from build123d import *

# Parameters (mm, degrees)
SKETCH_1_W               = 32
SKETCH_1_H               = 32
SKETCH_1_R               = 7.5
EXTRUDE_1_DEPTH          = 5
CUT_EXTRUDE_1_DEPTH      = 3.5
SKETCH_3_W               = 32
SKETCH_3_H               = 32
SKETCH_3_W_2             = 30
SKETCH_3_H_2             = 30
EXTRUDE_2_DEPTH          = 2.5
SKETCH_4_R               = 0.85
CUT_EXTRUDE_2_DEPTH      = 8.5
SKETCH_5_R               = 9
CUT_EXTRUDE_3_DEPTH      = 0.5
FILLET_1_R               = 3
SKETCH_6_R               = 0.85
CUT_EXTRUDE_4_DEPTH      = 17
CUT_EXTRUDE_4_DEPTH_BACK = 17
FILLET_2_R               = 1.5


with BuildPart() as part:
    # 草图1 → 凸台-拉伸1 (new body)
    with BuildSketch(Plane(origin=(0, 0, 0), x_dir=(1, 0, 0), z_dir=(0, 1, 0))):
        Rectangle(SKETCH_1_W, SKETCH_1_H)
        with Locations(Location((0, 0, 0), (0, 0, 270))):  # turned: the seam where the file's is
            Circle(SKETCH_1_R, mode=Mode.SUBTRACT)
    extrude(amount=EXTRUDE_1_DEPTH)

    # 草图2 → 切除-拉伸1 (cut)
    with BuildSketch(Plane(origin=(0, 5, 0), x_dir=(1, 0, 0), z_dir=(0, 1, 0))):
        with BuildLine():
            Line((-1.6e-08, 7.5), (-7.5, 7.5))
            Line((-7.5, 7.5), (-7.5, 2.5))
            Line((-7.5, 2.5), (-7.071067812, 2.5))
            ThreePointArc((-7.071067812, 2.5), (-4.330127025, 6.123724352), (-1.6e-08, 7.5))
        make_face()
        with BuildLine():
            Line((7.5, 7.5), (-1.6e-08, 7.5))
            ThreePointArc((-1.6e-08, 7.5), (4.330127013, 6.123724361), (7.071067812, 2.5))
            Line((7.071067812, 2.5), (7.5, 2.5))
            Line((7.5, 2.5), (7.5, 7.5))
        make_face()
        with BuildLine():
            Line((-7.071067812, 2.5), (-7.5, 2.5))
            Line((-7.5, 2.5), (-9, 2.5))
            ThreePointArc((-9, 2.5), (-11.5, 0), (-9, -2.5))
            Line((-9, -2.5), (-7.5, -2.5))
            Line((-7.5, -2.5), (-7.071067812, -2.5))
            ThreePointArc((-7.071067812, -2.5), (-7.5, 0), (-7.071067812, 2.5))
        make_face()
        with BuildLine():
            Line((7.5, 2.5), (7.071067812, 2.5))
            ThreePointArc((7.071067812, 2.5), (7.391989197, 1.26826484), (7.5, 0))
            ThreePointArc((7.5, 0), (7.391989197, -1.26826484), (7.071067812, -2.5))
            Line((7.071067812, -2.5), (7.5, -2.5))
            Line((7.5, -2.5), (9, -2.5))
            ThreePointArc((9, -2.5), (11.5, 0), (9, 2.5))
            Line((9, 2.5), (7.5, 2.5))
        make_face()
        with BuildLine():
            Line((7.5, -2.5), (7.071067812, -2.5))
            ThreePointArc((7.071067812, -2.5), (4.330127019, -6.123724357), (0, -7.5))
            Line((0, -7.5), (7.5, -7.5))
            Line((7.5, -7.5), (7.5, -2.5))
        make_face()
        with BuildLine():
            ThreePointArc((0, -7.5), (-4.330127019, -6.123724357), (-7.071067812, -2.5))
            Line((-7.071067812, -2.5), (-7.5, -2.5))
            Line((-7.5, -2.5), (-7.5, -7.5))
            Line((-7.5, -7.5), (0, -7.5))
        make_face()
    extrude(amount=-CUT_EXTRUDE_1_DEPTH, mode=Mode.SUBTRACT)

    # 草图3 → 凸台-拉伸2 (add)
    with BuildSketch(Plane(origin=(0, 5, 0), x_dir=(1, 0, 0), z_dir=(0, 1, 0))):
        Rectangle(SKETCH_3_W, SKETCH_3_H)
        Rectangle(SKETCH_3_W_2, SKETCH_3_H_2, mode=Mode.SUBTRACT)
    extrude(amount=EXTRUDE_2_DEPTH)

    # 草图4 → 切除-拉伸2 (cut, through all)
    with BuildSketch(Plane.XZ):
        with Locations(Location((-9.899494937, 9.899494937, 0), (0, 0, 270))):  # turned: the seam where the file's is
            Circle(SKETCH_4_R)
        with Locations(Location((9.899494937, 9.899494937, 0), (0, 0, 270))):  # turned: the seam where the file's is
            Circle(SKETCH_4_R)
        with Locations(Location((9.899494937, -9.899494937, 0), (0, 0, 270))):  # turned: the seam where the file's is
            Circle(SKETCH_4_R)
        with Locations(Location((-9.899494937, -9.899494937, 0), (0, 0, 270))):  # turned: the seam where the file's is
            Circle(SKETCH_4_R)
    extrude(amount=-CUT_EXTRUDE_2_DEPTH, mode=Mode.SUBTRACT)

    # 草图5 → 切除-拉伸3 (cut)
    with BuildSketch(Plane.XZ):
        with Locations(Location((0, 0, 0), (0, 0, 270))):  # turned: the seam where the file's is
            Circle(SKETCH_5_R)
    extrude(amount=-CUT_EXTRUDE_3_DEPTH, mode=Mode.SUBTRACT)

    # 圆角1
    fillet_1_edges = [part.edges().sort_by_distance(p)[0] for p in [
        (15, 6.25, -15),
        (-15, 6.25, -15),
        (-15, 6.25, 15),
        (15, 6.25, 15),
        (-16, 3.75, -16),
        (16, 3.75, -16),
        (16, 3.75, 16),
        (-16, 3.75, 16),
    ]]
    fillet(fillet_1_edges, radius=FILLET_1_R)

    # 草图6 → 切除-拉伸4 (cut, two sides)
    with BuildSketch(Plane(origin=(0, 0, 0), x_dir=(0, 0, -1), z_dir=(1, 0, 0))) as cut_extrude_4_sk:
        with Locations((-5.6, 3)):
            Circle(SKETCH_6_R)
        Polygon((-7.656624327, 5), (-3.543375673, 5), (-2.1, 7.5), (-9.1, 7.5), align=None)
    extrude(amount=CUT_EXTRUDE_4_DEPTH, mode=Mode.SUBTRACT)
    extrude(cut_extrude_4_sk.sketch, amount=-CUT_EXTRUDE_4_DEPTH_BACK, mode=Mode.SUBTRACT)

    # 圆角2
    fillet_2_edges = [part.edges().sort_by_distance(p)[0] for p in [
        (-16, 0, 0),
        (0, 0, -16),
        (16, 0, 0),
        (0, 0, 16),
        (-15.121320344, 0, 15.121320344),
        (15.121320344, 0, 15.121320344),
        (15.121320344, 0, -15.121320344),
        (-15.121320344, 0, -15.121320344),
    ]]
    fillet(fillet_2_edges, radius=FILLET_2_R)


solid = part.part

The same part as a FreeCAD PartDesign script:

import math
import FreeCAD as App
import Part
import Sketcher
Q = App.Units.Quantity


def edges_at(feature, points):
    """Names of the edges that pass closest to the given points."""
    edges = feature.Shape.Edges
    near = lambda p: min(range(len(edges)), key=lambda i: edges[i].distToShape(Part.Vertex(*p))[0])
    return sorted({f"Edge{near(p) + 1}" for p in points})

doc = App.newDocument("Part")
params = doc.addObject("Spreadsheet::Sheet", "Params")
for row, (alias, value) in enumerate([
    ("sketch1_diameter", "15 mm"),
    ("sketch1_width", "32 mm"),
    ("pad1_length", "5 mm"),
    ("sketch2_radius", "2.5 mm"),
    ("sketch2_radius2", "7.5 mm"),
    ("sketch2_width", "1.5 mm"),
    ("pocket1_length", "3.5 mm"),
    ("sketch3_width", "32 mm"),
    ("sketch3_width2", "30 mm"),
    ("pad2_length", "2.5 mm"),
    ("sketch4_diameter", "1.7 mm"),
    ("sketch5_diameter", "18 mm"),
    ("pocket3_length", "0.5 mm"),
    ("fillet_radius", "3 mm"),
    ("sketch6_diameter", "1.7 mm"),
    ("sketch6_height", "7 mm"),
    ("fillet2_radius", "1.5 mm"),
], start=1):
    params.set(f"A{row}", alias)
    params.set(f"B{row}", "=" + value)
    params.setAlias(f"B{row}", alias)

body = doc.addObject("PartDesign::Body", "Body")

# Sketch on XZ plane
sketch1 = body.newObject("Sketcher::SketchObject", "Sketch")
sketch1.AttachmentSupport = (doc.getObject("XZ_Plane"), [""])
sketch1.MapMode = "FlatFace"
sketch1.addGeometry([
    Part.LineSegment(App.Vector(-16, -16, 0), App.Vector(-16, 16, 0)),  # 0
    Part.LineSegment(App.Vector(-16, 16, 0), App.Vector(16, 16, 0)),  # 1
    Part.LineSegment(App.Vector(16, 16, 0), App.Vector(16, -16, 0)),  # 2
    Part.LineSegment(App.Vector(16, -16, 0), App.Vector(-16, -16, 0)),  # 3
    Part.Circle(App.Vector(0, 0, 0), App.Vector(0, 0, 1), 8),  # 4
], False)
sketch1.addConstraint([
    Sketcher.Constraint("Coincident", 0, 2, 1, 1),
    Sketcher.Constraint("Coincident", 1, 2, 2, 1),
    Sketcher.Constraint("Coincident", 2, 2, 3, 1),
    Sketcher.Constraint("Coincident", 3, 2, 0, 1),
    Sketcher.Constraint("Vertical", 0),
    Sketcher.Constraint("Horizontal", 1),
    Sketcher.Constraint("Vertical", 2),
    Sketcher.Constraint("Horizontal", 3),
    Sketcher.Constraint("Coincident", 4, 3, -1, 1),
    Sketcher.Constraint("Symmetric", 0, 2, 2, 2, -1, 1),
    Sketcher.Constraint("Equal", 3, 0),
    Sketcher.Constraint("Diameter", 4, Q("15 mm")),
    Sketcher.Constraint("DistanceX", 1, 1, 1, 2, Q("32 mm")),
])
sketch1.setExpression("Constraints[11]", "Params.sketch1_diameter")
sketch1.setExpression("Constraints[12]", "Params.sketch1_width")
pad1 = body.newObject("PartDesign::Pad", "Pad")
pad1.Profile = sketch1
pad1.setExpression("Length", "Params.pad1_length")
pad1.Reversed = True

# Sketch on XZ plane
sketch2 = body.newObject("Sketcher::SketchObject", "Sketch001")
sketch2.AttachmentSupport = (doc.getObject("XZ_Plane"), [""])
sketch2.MapMode = "FlatFace"
sketch2.AttachmentOffset = App.Placement(App.Vector(0, 0, -5), App.Rotation())
sketch2.addGeometry([
    Part.LineSegment(App.Vector(0, -7.5, 0), App.Vector(-7.5, -7.5, 0)),  # 0
    Part.LineSegment(App.Vector(-7.5, -7.5, 0), App.Vector(-7.5, -2.5, 0)),  # 1
    Part.LineSegment(App.Vector(-7.5, -2.5, 0), App.Vector(-9, -2.5, 0)),  # 2
    Part.ArcOfCircle(Part.Circle(App.Vector(-9, 0, 0), App.Vector(0, 0, 1), 2.5), math.radians(90), math.radians(270)),  # 3
    Part.LineSegment(App.Vector(-9, 2.5, 0), App.Vector(-7.5, 2.5, 0)),  # 4
    Part.LineSegment(App.Vector(-7.5, 2.5, 0), App.Vector(-7.5, 7.5, 0)),  # 5
    Part.LineSegment(App.Vector(-7.5, 7.5, 0), App.Vector(0, 7.5, 0)),  # 6
    Part.ArcOfCircle(Part.Circle(App.Vector(0, 0, 0), App.Vector(0, 0, 1), 7.5), math.radians(90), math.radians(161)),  # 7
    Part.ArcOfCircle(Part.Circle(App.Vector(0, 0, 0), App.Vector(0, 0, 1), 7.5), math.radians(161), math.radians(199)),  # 8
    Part.ArcOfCircle(Part.Circle(App.Vector(0, 0, 0), App.Vector(0, 0, 1), 7.5), math.radians(-161), math.radians(-90)),  # 9
    Part.LineSegment(App.Vector(7.5, -7.5, 0), App.Vector(0, -7.5, 0)),  # 10
    Part.ArcOfCircle(Part.Circle(App.Vector(0, 0, 0), App.Vector(0, 0, 1), 7.5), math.radians(-90), math.radians(-19)),  # 11
    Part.ArcOfCircle(Part.Circle(App.Vector(0, 0, 0), App.Vector(0, 0, 1), 7.5), math.radians(-19.47), math.radians(0)),  # 12
    Part.ArcOfCircle(Part.Circle(App.Vector(0, 0, 0), App.Vector(0, 0, 1), 7.5), math.radians(0), math.radians(19.47)),  # 13
    Part.ArcOfCircle(Part.Circle(App.Vector(0, 0, 0), App.Vector(0, 0, 1), 7.5), math.radians(19), math.radians(90)),  # 14
    Part.LineSegment(App.Vector(0, 7.5, 0), App.Vector(7.5, 7.5, 0)),  # 15
    Part.LineSegment(App.Vector(7.5, 7.5, 0), App.Vector(7.5, 2.5, 0)),  # 16
    Part.LineSegment(App.Vector(7.5, 2.5, 0), App.Vector(9, 2.5, 0)),  # 17
    Part.ArcOfCircle(Part.Circle(App.Vector(9, 0, 0), App.Vector(0, 0, 1), 2.5), math.radians(-90), math.radians(90)),  # 18
    Part.LineSegment(App.Vector(9, -2.5, 0), App.Vector(7.5, -2.5, 0)),  # 19
    Part.LineSegment(App.Vector(7.5, -2.5, 0), App.Vector(7.5, -7.5, 0)),  # 20
], False)
sketch2.addConstraint([
    Sketcher.Constraint("Coincident", 0, 2, 1, 1),
    Sketcher.Constraint("Coincident", 1, 2, 2, 1),
    Sketcher.Constraint("Tangent", 2, 2, 3, 2),
    Sketcher.Constraint("Tangent", 3, 1, 4, 1),
    Sketcher.Constraint("Coincident", 4, 2, 5, 1),
    Sketcher.Constraint("Coincident", 5, 2, 6, 1),
    Sketcher.Constraint("Tangent", 6, 2, 7, 1),
    Sketcher.Constraint("Tangent", 7, 2, 8, 1),
    Sketcher.Constraint("Tangent", 8, 2, 9, 1),
    Sketcher.Constraint("Tangent", 9, 2, 0, 1),
    Sketcher.Constraint("Tangent", 10, 2, 11, 1),
    Sketcher.Constraint("Tangent", 11, 2, 12, 1),
    Sketcher.Constraint("Tangent", 12, 2, 13, 1),
    Sketcher.Constraint("Tangent", 13, 2, 14, 1),
    Sketcher.Constraint("Tangent", 14, 2, 15, 1),
    Sketcher.Constraint("Coincident", 15, 2, 16, 1),
    Sketcher.Constraint("Coincident", 16, 2, 17, 1),
    Sketcher.Constraint("Tangent", 17, 2, 18, 2),
    Sketcher.Constraint("Tangent", 18, 1, 19, 1),
    Sketcher.Constraint("Coincident", 19, 2, 20, 1),
    Sketcher.Constraint("Coincident", 20, 2, 10, 1),
    Sketcher.Constraint("Horizontal", 0),
    Sketcher.Constraint("Vertical", 1),
    Sketcher.Constraint("Horizontal", 2),
    Sketcher.Constraint("Horizontal", 4),
    Sketcher.Constraint("Vertical", 5),
    Sketcher.Constraint("Horizontal", 6),
    Sketcher.Constraint("Horizontal", 10),
    Sketcher.Constraint("Horizontal", 15),
    Sketcher.Constraint("Vertical", 16),
    Sketcher.Constraint("Horizontal", 17),
    Sketcher.Constraint("Horizontal", 19),
    Sketcher.Constraint("Vertical", 20),
    Sketcher.Constraint("Coincident", 7, 3, -1, 1),
    Sketcher.Constraint("Coincident", 9, 3, -1, 1),
    Sketcher.Constraint("Coincident", 11, 3, -1, 1),
    Sketcher.Constraint("Coincident", 13, 3, -1, 1),
    Sketcher.Constraint("Coincident", 14, 2, 6, 2),
    Sketcher.Constraint("Equal", 3, 18),
    Sketcher.Constraint("Symmetric", 3, 3, 18, 3, -1, 1),
    Sketcher.Constraint("Symmetric", 4, 2, 16, 2, -2),
    Sketcher.Constraint("PointOnObject", 12, 2, -1),
    Sketcher.Constraint("Horizontal", 4, 2, 7, 2),
    Sketcher.Constraint("Horizontal", 2, 2, 8, 2),
    Sketcher.Constraint("Horizontal", 8, 2, 11, 2),
    Sketcher.Constraint("Horizontal", 7, 2, 13, 2),
    Sketcher.Constraint("Vertical", 1, 2, 4, 2),
    Sketcher.Constraint("Vertical", 12, 2, 15, 2),
    Sketcher.Constraint("Vertical", 16, 2, 19, 2),
    Sketcher.Constraint("Radius", 3, Q("2.5 mm")),
    Sketcher.Constraint("Radius", 7, Q("7.5 mm")),
    Sketcher.Constraint("DistanceX", 2, 2, 2, 1, Q("1.5 mm")),
])
sketch2.setExpression("Constraints[49]", "Params.sketch2_radius")
sketch2.setExpression("Constraints[50]", "Params.sketch2_radius2")
sketch2.setExpression("Constraints[51]", "Params.sketch2_width")
pocket1 = body.newObject("PartDesign::Pocket", "Pocket")
pocket1.Profile = sketch2
pocket1.setExpression("Length", "Params.pocket1_length")
pocket1.Reversed = True

# Sketch on XZ plane
sketch3 = body.newObject("Sketcher::SketchObject", "Sketch002")
sketch3.AttachmentSupport = (doc.getObject("XZ_Plane"), [""])
sketch3.MapMode = "FlatFace"
sketch3.AttachmentOffset = App.Placement(App.Vector(0, 0, -5), App.Rotation())
sketch3.addGeometry([
    Part.LineSegment(App.Vector(-16, -16, 0), App.Vector(-16, 16, 0)),  # 0
    Part.LineSegment(App.Vector(-16, 16, 0), App.Vector(16, 16, 0)),  # 1
    Part.LineSegment(App.Vector(16, 16, 0), App.Vector(16, -16, 0)),  # 2
    Part.LineSegment(App.Vector(16, -16, 0), App.Vector(-16, -16, 0)),  # 3
    Part.LineSegment(App.Vector(15, 15, 0), App.Vector(-15, 15, 0)),  # 4
    Part.LineSegment(App.Vector(-15, 15, 0), App.Vector(-15, -15, 0)),  # 5
    Part.LineSegment(App.Vector(-15, -15, 0), App.Vector(15, -15, 0)),  # 6
    Part.LineSegment(App.Vector(15, -15, 0), App.Vector(15, 15, 0)),  # 7
], False)
sketch3.addConstraint([
    Sketcher.Constraint("Coincident", 0, 2, 1, 1),
    Sketcher.Constraint("Coincident", 1, 2, 2, 1),
    Sketcher.Constraint("Coincident", 2, 2, 3, 1),
    Sketcher.Constraint("Coincident", 3, 2, 0, 1),
    Sketcher.Constraint("Coincident", 4, 2, 5, 1),
    Sketcher.Constraint("Coincident", 5, 2, 6, 1),
    Sketcher.Constraint("Coincident", 6, 2, 7, 1),
    Sketcher.Constraint("Coincident", 7, 2, 4, 1),
    Sketcher.Constraint("Vertical", 0),
    Sketcher.Constraint("Horizontal", 1),
    Sketcher.Constraint("Vertical", 2),
    Sketcher.Constraint("Horizontal", 3),
    Sketcher.Constraint("Horizontal", 4),
    Sketcher.Constraint("Vertical", 5),
    Sketcher.Constraint("Horizontal", 6),
    Sketcher.Constraint("Vertical", 7),
    Sketcher.Constraint("Symmetric", 0, 2, 2, 2, -1, 1),
    Sketcher.Constraint("Symmetric", 4, 2, 6, 2, -1, 1),
    Sketcher.Constraint("Equal", 3, 0),
    Sketcher.Constraint("Equal", 6, 5),
    Sketcher.Constraint("DistanceX", 1, 1, 1, 2, Q("32 mm")),
    Sketcher.Constraint("DistanceX", 4, 2, 4, 1, Q("30 mm")),
])
sketch3.setExpression("Constraints[20]", "Params.sketch3_width")
sketch3.setExpression("Constraints[21]", "Params.sketch3_width2")
pad2 = body.newObject("PartDesign::Pad", "Pad001")
pad2.Profile = sketch3
pad2.setExpression("Length", "Params.pad2_length")
pad2.Reversed = True

# Sketch on XZ plane
sketch4 = body.newObject("Sketcher::SketchObject", "Sketch003")
sketch4.AttachmentSupport = (doc.getObject("XZ_Plane"), [""])
sketch4.MapMode = "FlatFace"
sketch4.addGeometry([
    Part.Circle(App.Vector(-9.9, 9.9, 0), App.Vector(0, 0, 1), 0.8),
    Part.Circle(App.Vector(9.9, 9.9, 0), App.Vector(0, 0, 1), 0.8),
    Part.Circle(App.Vector(9.9, -9.9, 0), App.Vector(0, 0, 1), 0.8),
    Part.Circle(App.Vector(-9.9, -9.9, 0), App.Vector(0, 0, 1), 0.8),
], False)
sketch4.addConstraint([
    Sketcher.Constraint("Equal", 0, 1),
    Sketcher.Constraint("Equal", 1, 2),
    Sketcher.Constraint("Equal", 2, 3),
    Sketcher.Constraint("Symmetric", 0, 3, 2, 3, -1, 1),
    Sketcher.Constraint("Symmetric", 1, 3, 3, 3, -1, 1),
    Sketcher.Constraint("Symmetric", 0, 3, 1, 3, -2),
    Sketcher.Constraint("Diameter", 0, Q("1.7 mm")),
    Sketcher.Constraint("DistanceX", 0, 3, 1, 3, Q("19.79899 mm")),
    Sketcher.Constraint("DistanceY", 2, 3, 1, 3, Q("19.79899 mm")),
])
sketch4.setExpression("Constraints[6]", "Params.sketch4_diameter")
pocket2 = body.newObject("PartDesign::Pocket", "Pocket001")
pocket2.Profile = sketch4
pocket2.Type = "ThroughAll"

# Sketch on XZ plane
sketch5 = body.newObject("Sketcher::SketchObject", "Sketch004")
sketch5.AttachmentSupport = (doc.getObject("XZ_Plane"), [""])
sketch5.MapMode = "FlatFace"
sketch5.addGeometry(Part.Circle(App.Vector(0, 0, 0), App.Vector(0, 0, 1), 9), False)
sketch5.addConstraint([
    Sketcher.Constraint("Coincident", 0, 3, -1, 1),
    Sketcher.Constraint("Diameter", 0, Q("18 mm")),
])
sketch5.setExpression("Constraints[1]", "Params.sketch5_diameter")
pocket3 = body.newObject("PartDesign::Pocket", "Pocket002")
pocket3.Profile = sketch5
pocket3.setExpression("Length", "Params.pocket3_length")
doc.recompute()

fillet = body.newObject("PartDesign::Fillet", "Fillet")
fillet.Base = (pocket3, edges_at(pocket3, [
    (15, 6.25, -15),
    (-15, 6.25, -15),
    (-15, 6.25, 15),
    (15, 6.25, 15),
    (-16, 3.75, -16),
    (16, 3.75, -16),
    (16, 3.75, 16),
    (-16, 3.75, 16),
]))
fillet.setExpression("Radius", "Params.fillet_radius")

# Sketch on YZ plane
sketch6 = body.newObject("Sketcher::SketchObject", "Sketch005")
sketch6.AttachmentSupport = (doc.getObject("YZ_Plane"), [""])
sketch6.MapMode = "FlatFace"
sketch6.addGeometry([
    Part.Circle(App.Vector(3, 5.6, 0), App.Vector(0, 0, 1), 0.8),  # 0
    Part.LineSegment(App.Vector(5, 7.7, 0), App.Vector(5, 3.5, 0)),  # 1
    Part.LineSegment(App.Vector(5, 3.5, 0), App.Vector(7.5, 2.1, 0)),  # 2
    Part.LineSegment(App.Vector(7.5, 2.1, 0), App.Vector(7.5, 9.1, 0)),  # 3
    Part.LineSegment(App.Vector(7.5, 9.1, 0), App.Vector(5, 7.7, 0)),  # 4
], False)
sketch6.addConstraint([
    Sketcher.Constraint("Coincident", 1, 2, 2, 1),
    Sketcher.Constraint("Coincident", 2, 2, 3, 1),
    Sketcher.Constraint("Coincident", 3, 2, 4, 1),
    Sketcher.Constraint("Coincident", 4, 2, 1, 1),
    Sketcher.Constraint("Vertical", 1),
    Sketcher.Constraint("Vertical", 3),
    Sketcher.Constraint("Equal", 2, 4),
    Sketcher.Constraint("Diameter", 0, Q("1.7 mm")),
    Sketcher.Constraint("DistanceY", 3, 1, 3, 2, Q("7 mm")),
    Sketcher.Constraint("Angle", 2, Q("-30 deg")),
    Sketcher.Constraint("DistanceX", -1, 1, 0, 3, Q("3 mm")),
    Sketcher.Constraint("DistanceX", -1, 1, 1, 2, Q("5 mm")),
    Sketcher.Constraint("DistanceY", -1, 1, 0, 3, Q("5.6 mm")),
    Sketcher.Constraint("DistanceX", -1, 1, 2, 2, Q("7.5 mm")),
    Sketcher.Constraint("DistanceY", -1, 1, 2, 2, Q("2.1 mm")),
])
sketch6.setExpression("Constraints[7]", "Params.sketch6_diameter")
sketch6.setExpression("Constraints[8]", "Params.sketch6_height")
pocket4 = body.newObject("PartDesign::Pocket", "Pocket003")
pocket4.Profile = sketch6
pocket4.Type = "ThroughAll"
pocket4.Midplane = True
doc.recompute()

fillet2 = body.newObject("PartDesign::Fillet", "Fillet001")
fillet2.Base = (pocket4, edges_at(pocket4, [
    (-16, 0, 0),
    (0, 0, -16),
    (16, 0, 0),
    (0, 0, 16),
    (-15.121, 0, 15.121),
    (15.121, 0, 15.121),
    (15.121, 0, -15.121),
    (-15.121, 0, -15.121),
]))
fillet2.setExpression("Radius", "Params.fillet2_radius")

doc.recompute()
